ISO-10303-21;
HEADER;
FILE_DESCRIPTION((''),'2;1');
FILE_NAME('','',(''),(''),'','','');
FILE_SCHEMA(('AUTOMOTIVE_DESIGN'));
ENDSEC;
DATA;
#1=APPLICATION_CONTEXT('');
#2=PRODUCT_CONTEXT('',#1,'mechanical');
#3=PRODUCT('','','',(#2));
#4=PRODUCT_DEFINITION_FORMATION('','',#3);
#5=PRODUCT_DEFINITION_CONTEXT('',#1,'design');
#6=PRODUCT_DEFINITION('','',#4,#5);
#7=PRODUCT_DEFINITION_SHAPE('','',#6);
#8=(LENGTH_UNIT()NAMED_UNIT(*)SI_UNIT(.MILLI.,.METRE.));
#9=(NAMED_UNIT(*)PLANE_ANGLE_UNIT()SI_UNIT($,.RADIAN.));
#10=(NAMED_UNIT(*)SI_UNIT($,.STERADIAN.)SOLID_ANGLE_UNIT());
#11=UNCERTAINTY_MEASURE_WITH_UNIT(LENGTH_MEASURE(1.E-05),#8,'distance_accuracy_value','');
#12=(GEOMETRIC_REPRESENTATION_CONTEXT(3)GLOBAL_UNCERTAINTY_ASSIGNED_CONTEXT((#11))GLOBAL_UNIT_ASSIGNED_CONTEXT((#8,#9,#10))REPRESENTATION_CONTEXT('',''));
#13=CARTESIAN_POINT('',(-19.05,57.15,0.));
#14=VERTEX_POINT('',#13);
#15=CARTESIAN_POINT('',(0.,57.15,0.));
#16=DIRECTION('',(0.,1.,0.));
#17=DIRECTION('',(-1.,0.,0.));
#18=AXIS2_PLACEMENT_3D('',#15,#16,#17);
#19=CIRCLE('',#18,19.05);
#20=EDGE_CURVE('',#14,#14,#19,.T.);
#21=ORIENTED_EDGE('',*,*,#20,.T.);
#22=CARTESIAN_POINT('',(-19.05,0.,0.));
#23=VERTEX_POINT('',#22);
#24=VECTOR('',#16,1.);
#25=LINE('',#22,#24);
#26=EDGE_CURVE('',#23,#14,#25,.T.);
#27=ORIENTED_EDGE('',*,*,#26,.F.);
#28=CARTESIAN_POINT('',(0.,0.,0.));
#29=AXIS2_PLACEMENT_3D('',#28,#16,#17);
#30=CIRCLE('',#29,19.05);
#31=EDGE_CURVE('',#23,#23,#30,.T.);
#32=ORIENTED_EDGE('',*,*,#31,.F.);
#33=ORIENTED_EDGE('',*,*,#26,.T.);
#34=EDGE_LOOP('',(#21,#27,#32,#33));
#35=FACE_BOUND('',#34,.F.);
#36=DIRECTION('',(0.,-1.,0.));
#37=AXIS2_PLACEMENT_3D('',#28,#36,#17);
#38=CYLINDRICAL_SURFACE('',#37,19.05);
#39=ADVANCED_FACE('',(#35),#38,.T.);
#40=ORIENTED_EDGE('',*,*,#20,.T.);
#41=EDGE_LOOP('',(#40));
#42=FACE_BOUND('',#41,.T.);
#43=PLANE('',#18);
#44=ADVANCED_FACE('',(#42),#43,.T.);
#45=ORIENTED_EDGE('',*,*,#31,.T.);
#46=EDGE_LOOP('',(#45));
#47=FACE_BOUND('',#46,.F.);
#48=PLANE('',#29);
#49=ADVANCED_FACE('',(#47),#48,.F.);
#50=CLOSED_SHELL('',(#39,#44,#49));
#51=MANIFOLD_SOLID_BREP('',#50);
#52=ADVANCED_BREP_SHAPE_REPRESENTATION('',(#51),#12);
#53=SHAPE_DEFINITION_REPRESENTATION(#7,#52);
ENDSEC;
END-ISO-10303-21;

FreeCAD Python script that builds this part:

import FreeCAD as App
import Part
import Sketcher
from FreeCAD import Vector
Q = App.Units.Quantity

doc = App.newDocument("Part")
body = doc.addObject("PartDesign::Body", "Body")

sketch1 = body.newObject("Sketcher::SketchObject", "Sketch")
sketch1.AttachmentSupport = (doc.getObject("XZ_Plane"), [""])
sketch1.MapMode = "FlatFace"
sketch1.addGeometry(Part.Circle(Vector(0, 0, 0), Vector(0, 0, 1), 19.05), False)
sketch1.addConstraint(Sketcher.Constraint("Coincident", 0, 3, -1, 1))
sketch1.addConstraint(Sketcher.Constraint("Diameter", 0, Q("1.5 in")))
pad1 = body.newObject("PartDesign::Pad", "Pad")
pad1.Profile = sketch1
pad1.Length = Q("2.25 in")
pad1.Reversed = True

doc.recompute()
